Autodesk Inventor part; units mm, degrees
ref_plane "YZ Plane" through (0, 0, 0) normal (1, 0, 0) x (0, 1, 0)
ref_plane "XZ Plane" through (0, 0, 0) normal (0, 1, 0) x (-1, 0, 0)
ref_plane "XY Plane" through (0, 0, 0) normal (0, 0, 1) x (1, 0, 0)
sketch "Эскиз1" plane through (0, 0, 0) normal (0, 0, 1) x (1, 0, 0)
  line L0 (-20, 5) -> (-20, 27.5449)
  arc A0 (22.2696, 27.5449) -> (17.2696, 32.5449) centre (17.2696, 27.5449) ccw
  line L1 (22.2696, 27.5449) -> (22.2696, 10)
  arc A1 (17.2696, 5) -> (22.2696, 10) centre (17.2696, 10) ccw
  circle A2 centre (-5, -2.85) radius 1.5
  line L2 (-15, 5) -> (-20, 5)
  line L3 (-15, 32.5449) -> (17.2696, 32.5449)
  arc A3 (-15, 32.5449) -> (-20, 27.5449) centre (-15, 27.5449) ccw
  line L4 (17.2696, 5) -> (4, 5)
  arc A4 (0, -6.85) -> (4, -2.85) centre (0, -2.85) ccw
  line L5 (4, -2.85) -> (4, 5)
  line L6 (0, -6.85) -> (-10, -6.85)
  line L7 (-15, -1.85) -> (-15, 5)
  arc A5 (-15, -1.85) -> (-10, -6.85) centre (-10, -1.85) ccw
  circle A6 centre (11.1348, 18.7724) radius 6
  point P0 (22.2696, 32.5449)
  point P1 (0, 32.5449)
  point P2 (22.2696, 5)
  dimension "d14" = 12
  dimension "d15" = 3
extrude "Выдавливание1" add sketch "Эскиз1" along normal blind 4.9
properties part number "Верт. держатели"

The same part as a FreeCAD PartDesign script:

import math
import FreeCAD as App
import Part
import Sketcher

V = App.Vector

doc = App.newDocument("Part")
body = doc.addObject("PartDesign::Body", "Body")

sketch1 = body.newObject("Sketcher::SketchObject", "Sketch")
sketch1.AttachmentSupport = (doc.getObject("XY_Plane"), [""])
sketch1.MapMode = "FlatFace"
sketch1.addGeometry([
    Part.LineSegment(V(-20, 27.5, 0), V(-20, 5, 0)),
    Part.LineSegment(V(-20, 5, 0), V(-15, 5, 0)),
    Part.LineSegment(V(-15, 5, 0), V(-15, -1.9, 0)),
    Part.ArcOfCircle(Part.Circle(V(-10, -1.9, 0), V(0, 0, 1), 5), math.radians(180), math.radians(270)),
    Part.LineSegment(V(-10, -6.8, 0), V(0, -6.8, 0)),
    Part.ArcOfCircle(Part.Circle(V(0, -2.9, 0), V(0, 0, 1), 4), math.radians(-90), math.radians(0)),
    Part.LineSegment(V(4, -2.9, 0), V(4, 5, 0)),
    Part.LineSegment(V(4, 5, 0), V(17.3, 5, 0)),
    Part.ArcOfCircle(Part.Circle(V(17.3, 10, 0), V(0, 0, 1), 5), math.radians(-90), math.radians(0)),
    Part.LineSegment(V(22.3, 10, 0), V(22.3, 27.5, 0)),
    Part.ArcOfCircle(Part.Circle(V(17.3, 27.5, 0), V(0, 0, 1), 5), math.radians(0), math.radians(90)),
    Part.LineSegment(V(17.3, 32.5, 0), V(-15, 32.5, 0)),
    Part.ArcOfCircle(Part.Circle(V(-15, 27.5, 0), V(0, 0, 1), 5), math.radians(90), math.radians(180)),
    Part.Circle(V(-5, -2.9, 0), V(0, 0, 1), 1.5),
    Part.Circle(V(11.1, 18.8, 0), V(0, 0, 1), 6),
], False)
sketch1.addConstraint([
    Sketcher.Constraint("Coincident", 0, 2, 1, 1),
    Sketcher.Constraint("Coincident", 1, 2, 2, 1),
    Sketcher.Constraint("Tangent", 2, 2, 3, 1),
    Sketcher.Constraint("Tangent", 3, 2, 4, 1),
    Sketcher.Constraint("Tangent", 4, 2, 5, 1),
    Sketcher.Constraint("Tangent", 5, 2, 6, 1),
    Sketcher.Constraint("Coincident", 6, 2, 7, 1),
    Sketcher.Constraint("Tangent", 7, 2, 8, 1),
    Sketcher.Constraint("Tangent", 8, 2, 9, 1),
    Sketcher.Constraint("Tangent", 9, 2, 10, 1),
    Sketcher.Constraint("Tangent", 10, 2, 11, 1),
    Sketcher.Constraint("Tangent", 11, 2, 12, 1),
    Sketcher.Constraint("Tangent", 12, 2, 0, 1),
    Sketcher.Constraint("Vertical", 0),
    Sketcher.Constraint("Horizontal", 1),
    Sketcher.Constraint("Vertical", 2),
    Sketcher.Constraint("Horizontal", 4),
    Sketcher.Constraint("Vertical", 6),
    Sketcher.Constraint("Horizontal", 7),
    Sketcher.Constraint("Vertical", 9),
    Sketcher.Constraint("Horizontal", 11),
    Sketcher.Constraint("Equal", 3, 8),
    Sketcher.Constraint("Equal", 8, 10),
    Sketcher.Constraint("Equal", 10, 12),
    Sketcher.Constraint("PointOnObject", 5, 3, -2),
    Sketcher.Constraint("Horizontal", 5, 3, 13, 3),
    Sketcher.Constraint("Horizontal", 1, 2, 6, 2),
    Sketcher.Constraint("Vertical", 12, 3, 1, 2),
    Sketcher.Constraint("Diameter", 13, 3.0),
    Sketcher.Constraint("Diameter", 14, 12.0),
    Sketcher.Constraint("Radius", 3, 5.0),
    Sketcher.Constraint("Radius", 5, 4.0),
    Sketcher.Constraint("DistanceX", 4, 1, 4, 2, 10.0),
    Sketcher.Constraint("DistanceY", -1, 1, 8, 3, 10.0),
    Sketcher.Constraint("DistanceX", 13, 3, -1, 1, 5.0),
    Sketcher.Constraint("DistanceY", 2, 2, 2, 1, 6.85),
    Sketcher.Constraint("DistanceY", 0, 2, 0, 1, 22.545),
    Sketcher.Constraint("DistanceX", 7, 1, 7, 2, 13.2696),
    Sketcher.Constraint("DistanceX", -1, 1, 14, 3, 11.1348),
    Sketcher.Constraint("DistanceY", -1, 1, 14, 3, 18.7724),
])
pad1 = body.newObject("PartDesign::Pad", "Pad")
pad1.Profile = sketch1
pad1.Length = 4.9

doc.recompute()
